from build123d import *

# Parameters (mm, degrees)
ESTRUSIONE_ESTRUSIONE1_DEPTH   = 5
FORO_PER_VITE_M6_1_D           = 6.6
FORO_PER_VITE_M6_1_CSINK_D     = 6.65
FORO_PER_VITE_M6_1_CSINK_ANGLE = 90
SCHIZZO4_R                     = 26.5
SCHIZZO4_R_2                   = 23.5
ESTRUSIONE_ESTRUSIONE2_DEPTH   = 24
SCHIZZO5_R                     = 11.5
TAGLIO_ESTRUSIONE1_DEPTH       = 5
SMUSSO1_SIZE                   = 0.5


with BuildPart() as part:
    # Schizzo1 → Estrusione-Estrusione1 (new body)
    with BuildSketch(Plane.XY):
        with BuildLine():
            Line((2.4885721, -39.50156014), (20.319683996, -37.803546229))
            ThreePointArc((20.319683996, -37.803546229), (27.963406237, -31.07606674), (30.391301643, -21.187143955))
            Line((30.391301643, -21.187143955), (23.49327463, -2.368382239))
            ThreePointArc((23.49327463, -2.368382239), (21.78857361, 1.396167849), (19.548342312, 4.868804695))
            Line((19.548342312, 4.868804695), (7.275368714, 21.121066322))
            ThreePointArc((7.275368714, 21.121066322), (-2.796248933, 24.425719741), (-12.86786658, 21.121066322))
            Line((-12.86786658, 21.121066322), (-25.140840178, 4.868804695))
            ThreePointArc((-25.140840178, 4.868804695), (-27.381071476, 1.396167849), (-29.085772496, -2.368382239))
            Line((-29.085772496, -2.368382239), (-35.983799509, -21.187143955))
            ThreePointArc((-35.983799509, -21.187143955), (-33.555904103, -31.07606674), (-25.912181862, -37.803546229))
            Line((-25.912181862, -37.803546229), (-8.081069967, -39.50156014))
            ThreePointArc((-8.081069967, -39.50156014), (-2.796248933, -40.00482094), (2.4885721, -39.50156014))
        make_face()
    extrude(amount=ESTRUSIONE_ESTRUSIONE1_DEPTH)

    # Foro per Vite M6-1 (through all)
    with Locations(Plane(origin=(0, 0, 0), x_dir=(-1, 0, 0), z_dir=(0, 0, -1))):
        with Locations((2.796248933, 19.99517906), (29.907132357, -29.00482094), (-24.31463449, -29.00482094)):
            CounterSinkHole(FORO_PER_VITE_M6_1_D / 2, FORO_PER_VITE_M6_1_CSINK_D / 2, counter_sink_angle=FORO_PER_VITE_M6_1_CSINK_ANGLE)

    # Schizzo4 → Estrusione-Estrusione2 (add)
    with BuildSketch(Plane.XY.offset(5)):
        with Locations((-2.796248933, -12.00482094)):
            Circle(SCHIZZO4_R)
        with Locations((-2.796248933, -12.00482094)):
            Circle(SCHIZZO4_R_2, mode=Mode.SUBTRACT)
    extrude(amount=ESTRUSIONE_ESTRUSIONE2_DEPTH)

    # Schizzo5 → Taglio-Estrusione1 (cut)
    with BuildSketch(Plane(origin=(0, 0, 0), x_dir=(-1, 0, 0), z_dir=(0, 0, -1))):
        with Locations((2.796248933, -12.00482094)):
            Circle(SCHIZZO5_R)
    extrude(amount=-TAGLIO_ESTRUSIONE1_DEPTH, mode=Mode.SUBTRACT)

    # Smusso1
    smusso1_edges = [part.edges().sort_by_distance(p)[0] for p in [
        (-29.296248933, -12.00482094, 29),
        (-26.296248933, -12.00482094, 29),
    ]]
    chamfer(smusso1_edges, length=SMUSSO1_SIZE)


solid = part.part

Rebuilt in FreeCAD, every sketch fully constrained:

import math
import FreeCAD as App
import Part
import Sketcher
from FreeCAD import Vector
Q = App.Units.Quantity


def edges_at(feature, points):
    """Names of the edges that pass closest to the given points."""
    edges = feature.Shape.Edges
    near = lambda p: min(range(len(edges)), key=lambda i: edges[i].distToShape(Part.Vertex(*p))[0])
    return sorted({f"Edge{near(p) + 1}" for p in points})

doc = App.newDocument("Part")
body = doc.addObject("PartDesign::Body", "Body")

# Sketch on XY plane
sketch1 = body.newObject("Sketcher::SketchObject", "Sketch")
sketch1.AttachmentSupport = (doc.getObject("XY_Plane"), [""])
sketch1.MapMode = "FlatFace"
sketch1.addGeometry(Part.LineSegment(Vector(2, -40, 0), Vector(20, -38, 0)), False)
sketch1.addGeometry(Part.ArcOfCircle(Part.Circle(Vector(13, -22, 0), Vector(0, 0, 1), 17), math.radians(-66), math.radians(4)), False)
sketch1.addGeometry(Part.LineSegment(Vector(30, -21, 0), Vector(23, -2, 0)), False)
sketch1.addGeometry(Part.ArcOfCircle(Part.Circle(Vector(-3, -12, 0), Vector(0, 0, 1), 28), math.radians(20.13), math.radians(37.06)), False)
sketch1.addGeometry(Part.LineSegment(Vector(20, 5, 0), Vector(7, 21, 0)), False)
sketch1.addGeometry(Part.ArcOfCircle(Part.Circle(Vector(-3, 7, 0), Vector(0, 0, 1), 17), math.radians(54), math.radians(126)), False)
sketch1.addGeometry(Part.LineSegment(Vector(-13, 21, 0), Vector(-25, 5, 0)), False)
sketch1.addGeometry(Part.ArcOfCircle(Part.Circle(Vector(-3, -12, 0), Vector(0, 0, 1), 28), math.radians(142.94), math.radians(159.87)), False)
sketch1.addGeometry(Part.LineSegment(Vector(-29, -2, 0), Vector(-36, -21, 0)), False)
sketch1.addGeometry(Part.ArcOfCircle(Part.Circle(Vector(-19, -22, 0), Vector(0, 0, 1), 17), math.radians(176), math.radians(246)), False)
sketch1.addGeometry(Part.LineSegment(Vector(-26, -38, 0), Vector(-8, -40, 0)), False)
sketch1.addGeometry(Part.ArcOfCircle(Part.Circle(Vector(-3, -12, 0), Vector(0, 0, 1), 28), math.radians(-101), math.radians(-79)), False)
sketch1.addConstraint(Sketcher.Constraint("Coincident", 0, 2, 1, 1))
sketch1.addConstraint(Sketcher.Constraint("Coincident", 1, 2, 2, 1))
sketch1.addConstraint(Sketcher.Constraint("Tangent", 2, 2, 3, 1))
sketch1.addConstraint(Sketcher.Constraint("Tangent", 3, 2, 4, 1))
sketch1.addConstraint(Sketcher.Constraint("Coincident", 4, 2, 5, 1))
sketch1.addConstraint(Sketcher.Constraint("Coincident", 5, 2, 6, 1))
sketch1.addConstraint(Sketcher.Constraint("Tangent", 6, 2, 7, 1))
sketch1.addConstraint(Sketcher.Constraint("Tangent", 7, 2, 8, 1))
sketch1.addConstraint(Sketcher.Constraint("Coincident", 8, 2, 9, 1))
sketch1.addConstraint(Sketcher.Constraint("Coincident", 9, 2, 10, 1))
sketch1.addConstraint(Sketcher.Constraint("Coincident", 10, 2, 11, 1))
sketch1.addConstraint(Sketcher.Constraint("Coincident", 11, 2, 0, 1))
sketch1.addConstraint(Sketcher.Constraint("Coincident", 7, 3, 3, 3))
sketch1.addConstraint(Sketcher.Constraint("Coincident", 11, 3, 3, 3))
sketch1.addConstraint(Sketcher.Constraint("Equal", 1, 5))
sketch1.addConstraint(Sketcher.Constraint("Equal", 3, 7))
sketch1.addConstraint(Sketcher.Constraint("Equal", 5, 9))
sketch1.addConstraint(Sketcher.Constraint("Equal", 7, 11))
sketch1.addConstraint(Sketcher.Constraint("Horizontal", 1, 3, 9, 3))
sketch1.addConstraint(Sketcher.Constraint("Horizontal", 4, 2, 5, 2))
sketch1.addConstraint(Sketcher.Constraint("Horizontal", 3, 2, 6, 2))
sketch1.addConstraint(Sketcher.Constraint("Horizontal", 2, 2, 7, 2))
sketch1.addConstraint(Sketcher.Constraint("Horizontal", 1, 2, 8, 2))
sketch1.addConstraint(Sketcher.Constraint("Horizontal", 0, 2, 9, 2))
sketch1.addConstraint(Sketcher.Constraint("Horizontal", 10, 2, 11, 2))
sketch1.addConstraint(Sketcher.Constraint("Radius", 1, Q("17 mm")))
sketch1.addConstraint(Sketcher.Constraint("Radius", 3, Q("28 mm")))
sketch1.addConstraint(Sketcher.Constraint("DistanceX", -1, 1, 1, 2, Q("30.391302 mm")))
sketch1.addConstraint(Sketcher.Constraint("DistanceX", 8, 2, -1, 1, Q("35.9838 mm")))
sketch1.addConstraint(Sketcher.Constraint("Distance", 0, Q("17.911778 mm")))
sketch1.addConstraint(Sketcher.Constraint("DistanceX", -1, 1, 1, 3, Q("13.425458 mm")))
sketch1.addConstraint(Sketcher.Constraint("DistanceY", 3, 3, -1, 1, Q("12.004821 mm")))
sketch1.addConstraint(Sketcher.Constraint("DistanceY", -1, 1, 5, 3, Q("7.42572 mm")))
sketch1.addConstraint(Sketcher.Constraint("DistanceX", -1, 1, 4, 2, Q("7.275369 mm")))
sketch1.addConstraint(Sketcher.Constraint("DistanceX", 9, 2, -1, 1, Q("25.912182 mm")))
sketch1.addConstraint(Sketcher.Constraint("DistanceX", 10, 2, -1, 1, Q("8.08107 mm")))
pad1 = body.newObject("PartDesign::Pad", "Pad")
pad1.Profile = sketch1
pad1.Length = 5

# Sketch on XY plane
sketch2 = body.newObject("Sketcher::SketchObject", "Sketch001")
sketch2.AttachmentSupport = (doc.getObject("XY_Plane"), [""])
sketch2.MapMode = "FlatFace"
sketch2.addGeometry(Part.Circle(Vector(-2.8, 20, 0), Vector(0, 0, 1), 3.3), False)
sketch2.addGeometry(Part.Circle(Vector(-29.9, -29, 0), Vector(0, 0, 1), 3.3), False)
sketch2.addGeometry(Part.Circle(Vector(24.3, -29, 0), Vector(0, 0, 1), 3.3), False)
sketch2.addConstraint(Sketcher.Constraint("Equal", 0, 1))
sketch2.addConstraint(Sketcher.Constraint("Equal", 1, 2))
sketch2.addConstraint(Sketcher.Constraint("Horizontal", 1, 3, 2, 3))
sketch2.addConstraint(Sketcher.Constraint("Diameter", 0, Q("6.6 mm")))
sketch2.addConstraint(Sketcher.Constraint("DistanceY", 1, 3, 0, 3, Q("49 mm")))
sketch2.addConstraint(Sketcher.Constraint("DistanceX", 0, 3, -1, 1, Q("2.796249 mm")))
sketch2.addConstraint(Sketcher.Constraint("DistanceY", -1, 1, 0, 3, Q("19.995179 mm")))
sketch2.addConstraint(Sketcher.Constraint("DistanceX", 1, 3, -1, 1, Q("29.907132 mm")))
sketch2.addConstraint(Sketcher.Constraint("DistanceX", -1, 1, 2, 3, Q("24.314634 mm")))
doc.recompute()
hole = body.newObject("PartDesign::Hole", "Hole")
hole.Profile = sketch2
hole.ThreadType = "None"
hole.Diameter = 6.6
hole.DepthType = "ThroughAll"
hole.HoleCutType = "Countersink"
hole.HoleCutDiameter = 6.65
hole.HoleCutCountersinkAngle = 90
hole.Reversed = True

# Sketch on XY plane
sketch3 = body.newObject("Sketcher::SketchObject", "Sketch002")
sketch3.AttachmentSupport = (doc.getObject("XY_Plane"), [""])
sketch3.MapMode = "FlatFace"
sketch3.AttachmentOffset = App.Placement(Vector(0, 0, 5), App.Rotation())
sketch3.addGeometry(Part.Circle(Vector(-3, -12, 0), Vector(0, 0, 1), 26), False)
sketch3.addGeometry(Part.Circle(Vector(-3, -12, 0), Vector(0, 0, 1), 24), False)
sketch3.addConstraint(Sketcher.Constraint("Coincident", 1, 3, 0, 3))
sketch3.addConstraint(Sketcher.Constraint("Diameter", 0, Q("53 mm")))
sketch3.addConstraint(Sketcher.Constraint("Diameter", 1, Q("47 mm")))
sketch3.addConstraint(Sketcher.Constraint("DistanceX", 0, 3, -1, 1, Q("2.796249 mm")))
sketch3.addConstraint(Sketcher.Constraint("DistanceY", 0, 3, -1, 1, Q("12.004821 mm")))
pad2 = body.newObject("PartDesign::Pad", "Pad001")
pad2.Profile = sketch3
pad2.Length = 24

# Sketch on XY plane
sketch4 = body.newObject("Sketcher::SketchObject", "Sketch003")
sketch4.AttachmentSupport = (doc.getObject("XY_Plane"), [""])
sketch4.MapMode = "FlatFace"
sketch4.addGeometry(Part.Circle(Vector(-3, -12, 0), Vector(0, 0, 1), 12), False)
sketch4.addConstraint(Sketcher.Constraint("Diameter", 0, Q("23 mm")))
sketch4.addConstraint(Sketcher.Constraint("DistanceX", 0, 3, -1, 1, Q("2.796249 mm")))
sketch4.addConstraint(Sketcher.Constraint("DistanceY", 0, 3, -1, 1, Q("12.004821 mm")))
pocket1 = body.newObject("PartDesign::Pocket", "Pocket")
pocket1.Profile = sketch4
pocket1.Length = 5
pocket1.Reversed = True
doc.recompute()

chamfer = body.newObject("PartDesign::Chamfer", "Chamfer")
chamfer.Base = (pocket1, edges_at(pocket1, [(-29.296, -12.005, 29), (-26.296, -12.005, 29)]))
chamfer.Size = 0.5

doc.recompute()
